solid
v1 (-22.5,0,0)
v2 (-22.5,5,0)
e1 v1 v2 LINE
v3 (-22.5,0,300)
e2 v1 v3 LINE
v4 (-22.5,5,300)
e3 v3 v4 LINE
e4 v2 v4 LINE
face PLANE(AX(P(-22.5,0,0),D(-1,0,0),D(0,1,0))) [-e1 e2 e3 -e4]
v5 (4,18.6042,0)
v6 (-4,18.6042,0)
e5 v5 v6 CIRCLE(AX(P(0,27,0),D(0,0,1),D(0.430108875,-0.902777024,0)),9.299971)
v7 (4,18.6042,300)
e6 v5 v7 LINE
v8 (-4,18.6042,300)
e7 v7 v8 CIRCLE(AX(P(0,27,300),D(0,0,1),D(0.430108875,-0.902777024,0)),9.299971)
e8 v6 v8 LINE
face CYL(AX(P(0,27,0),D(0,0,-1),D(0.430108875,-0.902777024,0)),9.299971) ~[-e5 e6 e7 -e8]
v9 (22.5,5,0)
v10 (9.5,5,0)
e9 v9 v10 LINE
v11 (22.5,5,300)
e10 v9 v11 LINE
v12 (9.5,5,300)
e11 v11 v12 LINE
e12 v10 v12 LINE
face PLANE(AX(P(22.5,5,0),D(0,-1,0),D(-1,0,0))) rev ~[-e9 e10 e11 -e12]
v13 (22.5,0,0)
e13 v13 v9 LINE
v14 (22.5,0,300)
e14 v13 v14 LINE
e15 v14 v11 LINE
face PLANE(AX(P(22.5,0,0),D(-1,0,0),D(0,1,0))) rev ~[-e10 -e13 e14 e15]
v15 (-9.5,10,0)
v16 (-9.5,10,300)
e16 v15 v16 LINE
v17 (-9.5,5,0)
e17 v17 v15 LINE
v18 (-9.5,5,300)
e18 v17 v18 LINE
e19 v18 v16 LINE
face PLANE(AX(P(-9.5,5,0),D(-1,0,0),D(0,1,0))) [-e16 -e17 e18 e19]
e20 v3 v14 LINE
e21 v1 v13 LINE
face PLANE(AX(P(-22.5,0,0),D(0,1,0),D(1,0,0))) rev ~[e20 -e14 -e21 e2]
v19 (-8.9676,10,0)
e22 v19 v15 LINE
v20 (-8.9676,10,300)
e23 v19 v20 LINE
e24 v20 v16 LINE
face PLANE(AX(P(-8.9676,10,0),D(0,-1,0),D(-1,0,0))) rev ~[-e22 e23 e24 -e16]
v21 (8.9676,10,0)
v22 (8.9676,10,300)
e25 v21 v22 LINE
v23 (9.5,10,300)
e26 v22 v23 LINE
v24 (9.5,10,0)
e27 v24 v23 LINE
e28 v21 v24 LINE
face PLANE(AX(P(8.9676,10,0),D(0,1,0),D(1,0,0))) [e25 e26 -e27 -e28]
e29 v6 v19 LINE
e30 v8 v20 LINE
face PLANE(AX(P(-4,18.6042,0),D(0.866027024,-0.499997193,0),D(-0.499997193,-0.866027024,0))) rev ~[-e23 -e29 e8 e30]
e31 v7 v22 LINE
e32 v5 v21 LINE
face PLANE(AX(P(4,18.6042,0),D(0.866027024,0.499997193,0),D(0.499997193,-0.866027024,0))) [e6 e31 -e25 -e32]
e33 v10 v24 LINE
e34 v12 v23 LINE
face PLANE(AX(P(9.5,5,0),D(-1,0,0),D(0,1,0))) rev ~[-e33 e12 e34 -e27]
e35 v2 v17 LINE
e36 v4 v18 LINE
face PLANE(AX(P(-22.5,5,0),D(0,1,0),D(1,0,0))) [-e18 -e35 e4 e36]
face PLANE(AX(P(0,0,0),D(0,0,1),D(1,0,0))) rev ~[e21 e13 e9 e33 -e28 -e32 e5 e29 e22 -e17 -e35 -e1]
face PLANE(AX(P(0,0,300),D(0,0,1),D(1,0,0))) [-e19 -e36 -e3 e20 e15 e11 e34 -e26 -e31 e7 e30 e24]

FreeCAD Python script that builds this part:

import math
import FreeCAD as App
import Part
import Sketcher
Q = App.Units.Quantity

doc = App.newDocument("Part")
body = doc.addObject("PartDesign::Body", "Body")

sketch1 = body.newObject("Sketcher::SketchObject", "Sketch")
sketch1.AttachmentSupport = (doc.getObject("XY_Plane"), [""])
sketch1.MapMode = "FlatFace"
sketch1.addGeometry(Part.LineSegment(App.Vector(-22.5, 5, 0), App.Vector(-22.5, 0, 0)), False)
sketch1.addGeometry(Part.LineSegment(App.Vector(-22.5, 0, 0), App.Vector(22.5, 0, 0)), False)
sketch1.addGeometry(Part.LineSegment(App.Vector(22.5, 0, 0), App.Vector(22.5, 5, 0)), False)
sketch1.addGeometry(Part.LineSegment(App.Vector(22.5, 5, 0), App.Vector(9.5, 5, 0)), False)
sketch1.addGeometry(Part.LineSegment(App.Vector(9.5, 5, 0), App.Vector(9.5, 10, 0)), False)
sketch1.addGeometry(Part.LineSegment(App.Vector(9.5, 10, 0), App.Vector(8.9676, 10, 0)), False)
sketch1.addGeometry(Part.LineSegment(App.Vector(8.9676, 10, 0), App.Vector(4, 18.6042, 0)), False)
sketch1.addGeometry(Part.ArcOfCircle(Part.Circle(App.Vector(0, 27, 0), App.Vector(0, 0, 1), 9.299971), math.radians(-64.52553), math.radians(244.52553)), False)
sketch1.addGeometry(Part.LineSegment(App.Vector(-4, 18.6042, 0), App.Vector(-8.9676, 10, 0)), False)
sketch1.addGeometry(Part.LineSegment(App.Vector(-8.9676, 10, 0), App.Vector(-9.5, 10, 0)), False)
sketch1.addGeometry(Part.LineSegment(App.Vector(-9.5, 10, 0), App.Vector(-9.5, 5, 0)), False)
sketch1.addGeometry(Part.LineSegment(App.Vector(-9.5, 5, 0), App.Vector(-22.5, 5, 0)), False)
sketch1.addConstraint(Sketcher.Constraint("Coincident", 0, 2, 1, 1))
sketch1.addConstraint(Sketcher.Constraint("Coincident", 1, 2, 2, 1))
sketch1.addConstraint(Sketcher.Constraint("Coincident", 2, 2, 3, 1))
sketch1.addConstraint(Sketcher.Constraint("Coincident", 3, 2, 4, 1))
sketch1.addConstraint(Sketcher.Constraint("Coincident", 4, 2, 5, 1))
sketch1.addConstraint(Sketcher.Constraint("Coincident", 5, 2, 6, 1))
sketch1.addConstraint(Sketcher.Constraint("Coincident", 6, 2, 7, 1))
sketch1.addConstraint(Sketcher.Constraint("Coincident", 7, 2, 8, 1))
sketch1.addConstraint(Sketcher.Constraint("Coincident", 8, 2, 9, 1))
sketch1.addConstraint(Sketcher.Constraint("Coincident", 9, 2, 10, 1))
sketch1.addConstraint(Sketcher.Constraint("Coincident", 10, 2, 11, 1))
sketch1.addConstraint(Sketcher.Constraint("Coincident", 11, 2, 0, 1))
sketch1.addConstraint(Sketcher.Constraint("Vertical", 0))
sketch1.addConstraint(Sketcher.Constraint("Horizontal", 1))
sketch1.addConstraint(Sketcher.Constraint("Vertical", 2))
sketch1.addConstraint(Sketcher.Constraint("Horizontal", 3))
sketch1.addConstraint(Sketcher.Constraint("Vertical", 4))
sketch1.addConstraint(Sketcher.Constraint("Horizontal", 5))
sketch1.addConstraint(Sketcher.Constraint("Horizontal", 9))
sketch1.addConstraint(Sketcher.Constraint("Vertical", 10))
sketch1.addConstraint(Sketcher.Constraint("Horizontal", 11))
sketch1.addConstraint(Sketcher.Constraint("Symmetric", 0, 2, 1, 2, -1, 1))
sketch1.addConstraint(Sketcher.Constraint("Symmetric", 6, 2, 7, 2, -2))
sketch1.addConstraint(Sketcher.Constraint("Symmetric", 5, 2, 8, 2, -2))
sketch1.addConstraint(Sketcher.Constraint("Symmetric", 3, 2, 10, 2, -2))
sketch1.addConstraint(Sketcher.Constraint("Equal", 2, 4))
sketch1.addConstraint(Sketcher.Constraint("Radius", 7, 9.3))
sketch1.addConstraint(Sketcher.Constraint("DistanceX", 1, 1, 1, 2, 45.0))
sketch1.addConstraint(Sketcher.Constraint("DistanceX", 3, 2, 3, 1, 13.0))
sketch1.addConstraint(Sketcher.Constraint("DistanceY", 0, 2, 0, 1, 5.0))
sketch1.addConstraint(Sketcher.Constraint("DistanceY", -1, 1, 7, 3, 27.0))
sketch1.addConstraint(Sketcher.Constraint("DistanceX", -1, 1, 6, 2, 4.0))
sketch1.addConstraint(Sketcher.Constraint("Angle", 6, Q("119.9998 deg")))
pad1 = body.newObject("PartDesign::Pad", "Pad")
pad1.Profile = sketch1
pad1.Length = 300

doc.recompute()
